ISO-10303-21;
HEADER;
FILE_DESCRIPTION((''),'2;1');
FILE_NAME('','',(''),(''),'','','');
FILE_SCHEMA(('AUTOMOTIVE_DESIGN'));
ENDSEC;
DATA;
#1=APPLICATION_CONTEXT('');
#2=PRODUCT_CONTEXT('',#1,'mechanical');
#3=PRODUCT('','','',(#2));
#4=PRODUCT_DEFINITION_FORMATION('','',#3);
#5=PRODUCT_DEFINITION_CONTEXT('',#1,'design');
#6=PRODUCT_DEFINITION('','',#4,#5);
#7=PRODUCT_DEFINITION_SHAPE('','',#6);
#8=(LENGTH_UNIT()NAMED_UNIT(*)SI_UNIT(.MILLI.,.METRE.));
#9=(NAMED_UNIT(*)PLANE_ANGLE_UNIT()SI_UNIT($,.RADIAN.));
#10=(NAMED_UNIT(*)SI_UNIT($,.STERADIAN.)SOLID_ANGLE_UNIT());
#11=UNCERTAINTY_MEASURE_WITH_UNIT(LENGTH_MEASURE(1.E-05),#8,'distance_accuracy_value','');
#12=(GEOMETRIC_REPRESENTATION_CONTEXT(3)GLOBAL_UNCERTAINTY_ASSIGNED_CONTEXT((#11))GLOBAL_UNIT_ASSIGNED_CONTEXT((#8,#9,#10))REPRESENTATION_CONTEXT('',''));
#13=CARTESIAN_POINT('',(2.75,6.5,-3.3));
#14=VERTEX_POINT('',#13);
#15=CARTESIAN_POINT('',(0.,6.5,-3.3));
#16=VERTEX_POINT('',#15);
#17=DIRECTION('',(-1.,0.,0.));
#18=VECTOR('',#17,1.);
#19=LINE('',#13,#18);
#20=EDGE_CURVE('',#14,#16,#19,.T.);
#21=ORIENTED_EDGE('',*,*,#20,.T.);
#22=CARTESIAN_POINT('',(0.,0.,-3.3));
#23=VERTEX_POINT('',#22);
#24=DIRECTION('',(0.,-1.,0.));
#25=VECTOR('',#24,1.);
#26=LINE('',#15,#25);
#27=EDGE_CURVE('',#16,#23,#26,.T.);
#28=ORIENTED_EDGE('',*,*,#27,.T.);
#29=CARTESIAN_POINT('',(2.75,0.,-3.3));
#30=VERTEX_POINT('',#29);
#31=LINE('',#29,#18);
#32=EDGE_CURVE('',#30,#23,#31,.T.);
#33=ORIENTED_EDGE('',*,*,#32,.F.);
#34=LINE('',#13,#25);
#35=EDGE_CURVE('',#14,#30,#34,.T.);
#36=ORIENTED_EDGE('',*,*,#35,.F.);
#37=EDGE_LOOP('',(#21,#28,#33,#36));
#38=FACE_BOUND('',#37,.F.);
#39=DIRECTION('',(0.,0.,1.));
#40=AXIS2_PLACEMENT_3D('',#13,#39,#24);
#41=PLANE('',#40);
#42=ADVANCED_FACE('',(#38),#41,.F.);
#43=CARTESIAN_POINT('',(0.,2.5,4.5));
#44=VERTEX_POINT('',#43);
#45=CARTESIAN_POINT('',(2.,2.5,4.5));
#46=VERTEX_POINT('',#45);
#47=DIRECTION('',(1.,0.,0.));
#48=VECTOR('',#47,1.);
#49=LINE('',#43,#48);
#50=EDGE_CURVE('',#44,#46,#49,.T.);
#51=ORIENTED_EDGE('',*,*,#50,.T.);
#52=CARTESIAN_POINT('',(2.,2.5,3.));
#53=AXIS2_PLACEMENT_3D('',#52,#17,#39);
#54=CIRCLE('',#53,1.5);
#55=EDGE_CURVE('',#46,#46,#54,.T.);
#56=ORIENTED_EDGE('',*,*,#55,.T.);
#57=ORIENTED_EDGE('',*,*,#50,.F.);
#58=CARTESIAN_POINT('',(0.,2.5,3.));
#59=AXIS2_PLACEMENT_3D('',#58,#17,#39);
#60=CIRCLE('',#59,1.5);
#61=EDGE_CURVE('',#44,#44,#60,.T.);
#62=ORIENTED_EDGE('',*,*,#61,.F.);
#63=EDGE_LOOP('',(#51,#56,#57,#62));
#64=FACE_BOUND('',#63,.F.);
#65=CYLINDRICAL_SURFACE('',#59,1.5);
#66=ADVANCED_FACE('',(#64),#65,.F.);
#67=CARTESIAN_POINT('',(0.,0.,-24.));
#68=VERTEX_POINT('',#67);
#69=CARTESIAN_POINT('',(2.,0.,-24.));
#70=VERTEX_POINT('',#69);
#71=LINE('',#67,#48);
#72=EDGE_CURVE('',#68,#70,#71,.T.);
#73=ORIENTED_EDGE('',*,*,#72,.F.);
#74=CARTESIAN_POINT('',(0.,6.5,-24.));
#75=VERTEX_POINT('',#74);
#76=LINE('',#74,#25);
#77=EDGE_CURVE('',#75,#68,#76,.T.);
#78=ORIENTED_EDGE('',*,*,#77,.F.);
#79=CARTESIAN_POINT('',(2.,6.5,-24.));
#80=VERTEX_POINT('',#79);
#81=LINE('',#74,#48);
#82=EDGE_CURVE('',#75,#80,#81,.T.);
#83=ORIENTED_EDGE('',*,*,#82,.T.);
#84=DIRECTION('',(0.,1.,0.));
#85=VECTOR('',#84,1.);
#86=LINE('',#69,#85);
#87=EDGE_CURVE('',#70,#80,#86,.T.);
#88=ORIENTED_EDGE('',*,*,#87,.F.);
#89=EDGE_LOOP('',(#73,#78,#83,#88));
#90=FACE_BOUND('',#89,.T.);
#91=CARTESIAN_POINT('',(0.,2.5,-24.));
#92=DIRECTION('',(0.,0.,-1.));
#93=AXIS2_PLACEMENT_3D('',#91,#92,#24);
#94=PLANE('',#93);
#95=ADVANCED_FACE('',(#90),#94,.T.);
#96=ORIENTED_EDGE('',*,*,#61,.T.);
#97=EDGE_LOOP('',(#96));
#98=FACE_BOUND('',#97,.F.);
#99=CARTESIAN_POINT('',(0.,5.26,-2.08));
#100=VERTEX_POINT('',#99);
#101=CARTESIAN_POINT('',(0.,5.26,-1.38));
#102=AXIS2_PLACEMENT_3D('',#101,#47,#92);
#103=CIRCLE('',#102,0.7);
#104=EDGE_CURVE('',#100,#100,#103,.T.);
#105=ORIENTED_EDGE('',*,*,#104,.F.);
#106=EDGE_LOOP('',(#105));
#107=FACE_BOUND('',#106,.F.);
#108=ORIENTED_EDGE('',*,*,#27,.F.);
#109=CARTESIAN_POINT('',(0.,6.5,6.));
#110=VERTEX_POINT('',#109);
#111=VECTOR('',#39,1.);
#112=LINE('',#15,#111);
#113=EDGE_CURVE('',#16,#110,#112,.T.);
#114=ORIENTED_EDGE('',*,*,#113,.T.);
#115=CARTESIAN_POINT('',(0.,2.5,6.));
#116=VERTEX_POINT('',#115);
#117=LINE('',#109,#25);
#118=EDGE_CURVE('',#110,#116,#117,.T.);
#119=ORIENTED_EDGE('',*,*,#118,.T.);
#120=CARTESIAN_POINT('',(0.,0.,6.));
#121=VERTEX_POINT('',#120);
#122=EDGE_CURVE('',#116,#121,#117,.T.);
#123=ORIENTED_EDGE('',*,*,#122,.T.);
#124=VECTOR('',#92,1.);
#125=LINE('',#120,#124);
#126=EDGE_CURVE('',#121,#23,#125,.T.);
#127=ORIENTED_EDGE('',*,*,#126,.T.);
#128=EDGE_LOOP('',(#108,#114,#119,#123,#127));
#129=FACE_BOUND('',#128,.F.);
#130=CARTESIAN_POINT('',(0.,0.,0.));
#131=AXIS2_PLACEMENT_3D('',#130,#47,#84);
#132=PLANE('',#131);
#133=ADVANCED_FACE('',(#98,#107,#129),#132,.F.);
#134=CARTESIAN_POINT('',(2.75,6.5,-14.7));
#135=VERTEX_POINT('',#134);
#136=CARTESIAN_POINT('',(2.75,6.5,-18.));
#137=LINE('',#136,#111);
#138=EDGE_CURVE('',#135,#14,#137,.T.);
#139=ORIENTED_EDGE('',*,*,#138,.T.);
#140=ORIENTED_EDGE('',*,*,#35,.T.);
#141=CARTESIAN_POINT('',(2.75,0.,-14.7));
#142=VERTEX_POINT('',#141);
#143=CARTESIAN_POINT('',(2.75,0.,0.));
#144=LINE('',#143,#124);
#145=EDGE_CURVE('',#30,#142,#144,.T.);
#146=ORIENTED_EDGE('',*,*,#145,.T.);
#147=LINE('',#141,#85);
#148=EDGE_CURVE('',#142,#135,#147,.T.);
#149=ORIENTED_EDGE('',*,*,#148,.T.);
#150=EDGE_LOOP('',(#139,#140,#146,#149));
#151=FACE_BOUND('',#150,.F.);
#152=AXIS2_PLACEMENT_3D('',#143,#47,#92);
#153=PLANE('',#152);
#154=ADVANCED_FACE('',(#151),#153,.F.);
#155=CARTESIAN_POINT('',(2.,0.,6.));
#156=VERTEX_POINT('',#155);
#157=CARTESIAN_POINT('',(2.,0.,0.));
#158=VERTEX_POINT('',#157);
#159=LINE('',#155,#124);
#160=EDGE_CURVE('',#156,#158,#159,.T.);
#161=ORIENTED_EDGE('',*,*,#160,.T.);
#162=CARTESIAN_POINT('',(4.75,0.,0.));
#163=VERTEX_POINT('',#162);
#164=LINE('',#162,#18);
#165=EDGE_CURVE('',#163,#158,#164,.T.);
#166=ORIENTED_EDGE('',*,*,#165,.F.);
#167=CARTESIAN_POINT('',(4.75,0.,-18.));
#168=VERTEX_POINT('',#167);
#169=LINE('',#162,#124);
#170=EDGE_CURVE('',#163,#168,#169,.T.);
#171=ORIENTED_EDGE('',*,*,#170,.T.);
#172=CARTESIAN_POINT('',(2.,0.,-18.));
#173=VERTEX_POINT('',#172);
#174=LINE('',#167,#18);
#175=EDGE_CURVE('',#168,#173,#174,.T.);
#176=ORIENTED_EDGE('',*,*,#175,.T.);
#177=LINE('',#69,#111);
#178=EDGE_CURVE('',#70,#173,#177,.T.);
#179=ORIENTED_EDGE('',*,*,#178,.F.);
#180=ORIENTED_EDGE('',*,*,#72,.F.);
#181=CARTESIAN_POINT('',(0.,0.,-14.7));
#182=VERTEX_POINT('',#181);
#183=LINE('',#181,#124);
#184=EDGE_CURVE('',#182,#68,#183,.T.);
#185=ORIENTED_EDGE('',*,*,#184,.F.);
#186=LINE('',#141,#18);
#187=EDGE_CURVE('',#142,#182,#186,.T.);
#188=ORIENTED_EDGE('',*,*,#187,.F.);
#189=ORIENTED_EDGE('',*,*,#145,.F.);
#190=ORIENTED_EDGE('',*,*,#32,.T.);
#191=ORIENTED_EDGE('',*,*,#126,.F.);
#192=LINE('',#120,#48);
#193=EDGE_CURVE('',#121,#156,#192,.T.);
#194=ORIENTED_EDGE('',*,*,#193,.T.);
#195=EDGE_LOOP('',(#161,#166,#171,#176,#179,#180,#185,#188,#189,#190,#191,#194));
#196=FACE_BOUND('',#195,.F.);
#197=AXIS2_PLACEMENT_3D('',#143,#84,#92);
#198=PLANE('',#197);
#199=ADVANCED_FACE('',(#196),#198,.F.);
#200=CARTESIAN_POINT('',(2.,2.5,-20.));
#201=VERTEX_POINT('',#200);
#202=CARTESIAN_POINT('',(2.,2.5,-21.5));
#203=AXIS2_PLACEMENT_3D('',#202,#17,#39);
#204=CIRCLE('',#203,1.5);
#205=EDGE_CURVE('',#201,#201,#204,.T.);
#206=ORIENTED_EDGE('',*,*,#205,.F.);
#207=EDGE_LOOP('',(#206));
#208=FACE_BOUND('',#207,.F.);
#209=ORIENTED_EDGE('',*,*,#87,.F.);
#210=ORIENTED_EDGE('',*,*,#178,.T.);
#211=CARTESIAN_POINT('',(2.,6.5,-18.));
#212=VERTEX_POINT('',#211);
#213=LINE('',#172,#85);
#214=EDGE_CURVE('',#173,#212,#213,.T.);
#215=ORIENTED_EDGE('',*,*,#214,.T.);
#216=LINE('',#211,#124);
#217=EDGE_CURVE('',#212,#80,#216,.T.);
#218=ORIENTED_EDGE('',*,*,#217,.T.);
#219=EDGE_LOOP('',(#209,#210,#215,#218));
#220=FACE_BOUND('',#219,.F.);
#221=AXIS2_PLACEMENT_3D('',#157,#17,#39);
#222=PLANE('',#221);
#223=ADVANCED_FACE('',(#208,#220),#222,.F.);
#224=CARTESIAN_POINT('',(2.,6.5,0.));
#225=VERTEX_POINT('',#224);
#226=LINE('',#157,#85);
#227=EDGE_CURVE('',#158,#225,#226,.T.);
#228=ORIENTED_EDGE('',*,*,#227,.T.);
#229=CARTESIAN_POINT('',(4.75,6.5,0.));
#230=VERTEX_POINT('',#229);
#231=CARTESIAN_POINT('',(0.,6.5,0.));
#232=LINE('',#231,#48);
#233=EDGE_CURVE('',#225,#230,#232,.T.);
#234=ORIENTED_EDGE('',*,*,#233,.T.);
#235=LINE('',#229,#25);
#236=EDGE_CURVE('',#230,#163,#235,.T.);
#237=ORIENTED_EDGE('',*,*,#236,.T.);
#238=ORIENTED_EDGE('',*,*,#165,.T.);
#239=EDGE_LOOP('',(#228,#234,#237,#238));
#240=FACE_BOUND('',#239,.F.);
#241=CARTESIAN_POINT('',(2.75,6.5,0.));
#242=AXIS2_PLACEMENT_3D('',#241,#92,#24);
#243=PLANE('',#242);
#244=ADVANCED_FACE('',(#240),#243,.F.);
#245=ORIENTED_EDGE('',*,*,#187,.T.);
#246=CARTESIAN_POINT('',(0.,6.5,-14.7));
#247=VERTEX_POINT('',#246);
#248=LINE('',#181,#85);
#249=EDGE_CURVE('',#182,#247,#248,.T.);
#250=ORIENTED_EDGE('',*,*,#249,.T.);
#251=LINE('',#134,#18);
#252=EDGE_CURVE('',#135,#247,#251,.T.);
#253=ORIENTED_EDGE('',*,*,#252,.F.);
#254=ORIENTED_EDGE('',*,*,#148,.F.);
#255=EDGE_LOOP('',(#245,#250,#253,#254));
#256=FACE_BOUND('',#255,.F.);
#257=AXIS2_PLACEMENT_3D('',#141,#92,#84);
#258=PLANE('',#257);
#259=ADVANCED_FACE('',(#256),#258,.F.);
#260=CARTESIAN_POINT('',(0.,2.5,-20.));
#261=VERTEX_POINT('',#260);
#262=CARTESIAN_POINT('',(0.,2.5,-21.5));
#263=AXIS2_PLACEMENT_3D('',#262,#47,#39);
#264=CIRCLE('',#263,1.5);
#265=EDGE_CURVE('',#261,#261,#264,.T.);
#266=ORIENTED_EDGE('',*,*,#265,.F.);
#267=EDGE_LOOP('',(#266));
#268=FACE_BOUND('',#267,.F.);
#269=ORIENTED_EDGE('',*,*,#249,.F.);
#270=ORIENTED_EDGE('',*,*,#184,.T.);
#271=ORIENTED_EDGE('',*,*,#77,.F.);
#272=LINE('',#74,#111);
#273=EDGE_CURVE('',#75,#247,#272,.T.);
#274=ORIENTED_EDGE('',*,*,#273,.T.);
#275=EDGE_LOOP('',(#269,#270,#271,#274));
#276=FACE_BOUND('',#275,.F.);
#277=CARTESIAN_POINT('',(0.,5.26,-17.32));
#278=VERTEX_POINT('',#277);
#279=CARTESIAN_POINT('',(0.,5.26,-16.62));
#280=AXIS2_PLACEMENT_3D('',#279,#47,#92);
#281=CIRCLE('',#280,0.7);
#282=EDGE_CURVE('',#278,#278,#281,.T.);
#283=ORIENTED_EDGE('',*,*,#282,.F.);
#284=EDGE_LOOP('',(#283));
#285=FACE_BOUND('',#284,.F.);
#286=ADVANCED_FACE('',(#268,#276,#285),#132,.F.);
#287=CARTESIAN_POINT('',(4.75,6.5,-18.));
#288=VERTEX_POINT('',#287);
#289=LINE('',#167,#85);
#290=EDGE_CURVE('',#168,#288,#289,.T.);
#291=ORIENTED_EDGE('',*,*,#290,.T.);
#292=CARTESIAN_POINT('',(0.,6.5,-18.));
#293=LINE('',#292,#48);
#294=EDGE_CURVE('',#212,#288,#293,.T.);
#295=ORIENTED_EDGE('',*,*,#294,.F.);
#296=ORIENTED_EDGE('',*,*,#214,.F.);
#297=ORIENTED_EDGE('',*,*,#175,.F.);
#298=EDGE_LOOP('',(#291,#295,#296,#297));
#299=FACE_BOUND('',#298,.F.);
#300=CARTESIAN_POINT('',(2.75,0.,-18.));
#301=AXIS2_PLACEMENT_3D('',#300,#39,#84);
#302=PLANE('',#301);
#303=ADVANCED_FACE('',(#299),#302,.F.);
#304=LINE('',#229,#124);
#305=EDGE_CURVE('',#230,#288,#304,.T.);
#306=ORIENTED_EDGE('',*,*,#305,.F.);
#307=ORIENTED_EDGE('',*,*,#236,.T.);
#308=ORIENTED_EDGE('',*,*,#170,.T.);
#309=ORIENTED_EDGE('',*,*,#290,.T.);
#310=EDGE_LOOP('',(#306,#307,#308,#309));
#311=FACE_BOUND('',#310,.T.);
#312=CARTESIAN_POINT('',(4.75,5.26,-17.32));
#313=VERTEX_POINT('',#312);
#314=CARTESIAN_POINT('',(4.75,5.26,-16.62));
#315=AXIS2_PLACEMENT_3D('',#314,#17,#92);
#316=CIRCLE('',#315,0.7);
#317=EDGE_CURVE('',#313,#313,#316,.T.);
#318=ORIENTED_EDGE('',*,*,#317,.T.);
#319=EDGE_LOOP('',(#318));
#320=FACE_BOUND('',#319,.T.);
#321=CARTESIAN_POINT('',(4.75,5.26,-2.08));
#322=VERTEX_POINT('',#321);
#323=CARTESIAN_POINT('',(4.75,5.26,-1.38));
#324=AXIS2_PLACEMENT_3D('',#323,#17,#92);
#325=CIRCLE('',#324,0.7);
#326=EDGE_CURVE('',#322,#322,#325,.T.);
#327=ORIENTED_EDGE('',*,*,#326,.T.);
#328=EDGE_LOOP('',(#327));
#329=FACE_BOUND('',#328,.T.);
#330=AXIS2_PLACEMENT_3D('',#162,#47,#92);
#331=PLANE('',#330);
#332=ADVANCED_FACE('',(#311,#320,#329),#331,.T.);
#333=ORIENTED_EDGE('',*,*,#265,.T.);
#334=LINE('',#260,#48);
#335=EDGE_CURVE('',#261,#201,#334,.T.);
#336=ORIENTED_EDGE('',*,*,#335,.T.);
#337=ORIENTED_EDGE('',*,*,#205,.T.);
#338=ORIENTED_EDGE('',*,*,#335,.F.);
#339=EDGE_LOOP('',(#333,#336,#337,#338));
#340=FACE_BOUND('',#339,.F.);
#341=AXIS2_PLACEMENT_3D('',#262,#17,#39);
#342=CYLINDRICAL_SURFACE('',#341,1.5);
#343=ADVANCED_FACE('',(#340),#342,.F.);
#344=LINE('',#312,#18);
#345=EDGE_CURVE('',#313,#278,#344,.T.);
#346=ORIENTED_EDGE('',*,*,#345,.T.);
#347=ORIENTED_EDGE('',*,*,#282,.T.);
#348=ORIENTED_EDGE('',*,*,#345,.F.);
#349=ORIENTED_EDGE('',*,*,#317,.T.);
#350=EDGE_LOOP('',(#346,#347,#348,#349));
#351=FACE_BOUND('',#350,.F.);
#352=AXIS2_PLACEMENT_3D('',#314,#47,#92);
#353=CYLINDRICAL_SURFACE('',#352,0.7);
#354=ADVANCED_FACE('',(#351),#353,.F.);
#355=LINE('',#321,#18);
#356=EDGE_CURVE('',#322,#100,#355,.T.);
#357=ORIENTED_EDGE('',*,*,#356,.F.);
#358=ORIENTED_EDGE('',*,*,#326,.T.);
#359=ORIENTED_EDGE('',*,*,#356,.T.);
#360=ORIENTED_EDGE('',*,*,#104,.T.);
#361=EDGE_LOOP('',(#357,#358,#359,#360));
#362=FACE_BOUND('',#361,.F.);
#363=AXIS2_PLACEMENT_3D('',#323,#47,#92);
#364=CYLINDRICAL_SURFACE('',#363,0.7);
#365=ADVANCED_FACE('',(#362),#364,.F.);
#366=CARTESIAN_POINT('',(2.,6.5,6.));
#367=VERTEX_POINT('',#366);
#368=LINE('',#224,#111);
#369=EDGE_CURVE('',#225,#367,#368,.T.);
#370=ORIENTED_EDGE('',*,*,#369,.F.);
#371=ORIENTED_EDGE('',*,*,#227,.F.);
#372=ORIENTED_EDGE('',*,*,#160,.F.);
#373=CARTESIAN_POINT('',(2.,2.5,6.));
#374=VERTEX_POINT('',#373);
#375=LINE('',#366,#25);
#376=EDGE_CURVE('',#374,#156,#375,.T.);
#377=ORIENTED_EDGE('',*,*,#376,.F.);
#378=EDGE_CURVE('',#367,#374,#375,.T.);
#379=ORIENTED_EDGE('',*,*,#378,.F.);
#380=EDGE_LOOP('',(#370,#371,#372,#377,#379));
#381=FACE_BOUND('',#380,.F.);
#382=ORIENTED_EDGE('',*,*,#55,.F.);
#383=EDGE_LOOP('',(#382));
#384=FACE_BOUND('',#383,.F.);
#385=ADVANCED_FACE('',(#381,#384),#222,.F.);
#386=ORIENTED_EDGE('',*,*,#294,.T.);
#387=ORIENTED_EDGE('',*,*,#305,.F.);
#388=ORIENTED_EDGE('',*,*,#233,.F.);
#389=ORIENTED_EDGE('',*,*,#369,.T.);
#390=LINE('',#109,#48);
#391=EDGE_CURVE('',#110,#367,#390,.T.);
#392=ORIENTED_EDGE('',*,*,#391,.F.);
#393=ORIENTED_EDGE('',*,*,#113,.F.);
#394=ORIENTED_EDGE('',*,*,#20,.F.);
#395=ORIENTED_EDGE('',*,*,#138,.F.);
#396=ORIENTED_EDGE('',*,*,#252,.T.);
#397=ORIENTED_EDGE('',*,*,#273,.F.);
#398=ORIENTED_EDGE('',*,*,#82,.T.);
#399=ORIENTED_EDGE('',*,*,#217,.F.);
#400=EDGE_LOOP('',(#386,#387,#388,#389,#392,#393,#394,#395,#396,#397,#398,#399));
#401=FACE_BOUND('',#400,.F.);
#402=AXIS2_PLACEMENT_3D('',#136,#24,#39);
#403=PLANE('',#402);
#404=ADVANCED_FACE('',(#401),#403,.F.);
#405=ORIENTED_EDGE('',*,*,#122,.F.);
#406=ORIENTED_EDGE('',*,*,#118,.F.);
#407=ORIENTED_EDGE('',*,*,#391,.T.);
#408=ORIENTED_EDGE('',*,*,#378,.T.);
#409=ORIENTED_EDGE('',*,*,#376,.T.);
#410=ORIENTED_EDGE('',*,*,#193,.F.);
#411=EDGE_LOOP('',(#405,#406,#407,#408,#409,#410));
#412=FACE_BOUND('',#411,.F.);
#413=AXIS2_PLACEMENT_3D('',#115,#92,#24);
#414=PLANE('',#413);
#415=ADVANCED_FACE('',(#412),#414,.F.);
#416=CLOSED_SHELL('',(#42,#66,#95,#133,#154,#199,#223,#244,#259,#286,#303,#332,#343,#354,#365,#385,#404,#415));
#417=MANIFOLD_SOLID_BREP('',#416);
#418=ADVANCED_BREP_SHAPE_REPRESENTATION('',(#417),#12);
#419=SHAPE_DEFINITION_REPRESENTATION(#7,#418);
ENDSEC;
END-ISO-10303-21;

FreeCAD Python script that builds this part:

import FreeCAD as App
import Part
import Sketcher
from FreeCAD import Vector
Q = App.Units.Quantity


def add_polygon(sketch, points):
    """Adds a closed chain of lines whose ends are joined by coincident constraints."""
    first, n = sketch.GeometryCount, len(points)
    for a, b in zip(points, points[1:] + points[:1]):
        sketch.addGeometry(Part.LineSegment(App.Vector(*a, 0), App.Vector(*b, 0)), False)
    for i in range(n):
        sketch.addConstraint(Sketcher.Constraint("Coincident", first + i, 2, first + (i + 1) % n, 1))

doc = App.newDocument("Part")
body = doc.addObject("PartDesign::Body", "Body")
body.AllowCompound = True

sketch1 = body.newObject("Sketcher::SketchObject", "Sketch")
sketch1.AttachmentSupport = (doc.getObject("YZ_Plane"), [""])
sketch1.MapMode = "FlatFace"
add_polygon(sketch1, [(6, 0), (0, 0), (0, -18), (6, -18)])
sketch1.addConstraint(Sketcher.Constraint("Horizontal", 0))
sketch1.addConstraint(Sketcher.Constraint("Vertical", 1))
sketch1.addConstraint(Sketcher.Constraint("Horizontal", 2))
sketch1.addConstraint(Sketcher.Constraint("Vertical", 3))
sketch1.addConstraint(Sketcher.Constraint("Coincident", 0, 2, -1, 1))
sketch1.addConstraint(Sketcher.Constraint("DistanceY", 1, 2, 1, 1, Q("18 mm")))
sketch1.addConstraint(Sketcher.Constraint("DistanceX", 0, 2, 0, 1, Q("6.5 mm")))
pad1 = body.newObject("PartDesign::Pad", "Pad")
pad1.Profile = sketch1
pad1.Length = 2.75

sketch2 = body.newObject("Sketcher::SketchObject", "Sketch001")
sketch2.AttachmentSupport = (doc.getObject("YZ_Plane"), [""])
sketch2.MapMode = "FlatFace"
sketch2.AttachmentOffset = App.Placement(Vector(0, 0, 2.75), App.Rotation())
add_polygon(sketch2, [(6, -15), (6, -3), (0, -3), (0, -15)])
sketch2.addConstraint(Sketcher.Constraint("Vertical", 0))
sketch2.addConstraint(Sketcher.Constraint("Horizontal", 1))
sketch2.addConstraint(Sketcher.Constraint("Vertical", 2))
sketch2.addConstraint(Sketcher.Constraint("Horizontal", 3))
sketch2.addConstraint(Sketcher.Constraint("PointOnObject", 1, 2, -2))
sketch2.addConstraint(Sketcher.Constraint("DistanceY", 0, 2, -1, 1, Q("3.3 mm")))
sketch2.addConstraint(Sketcher.Constraint("DistanceX", 1, 2, 1, 1, Q("6.5 mm")))
sketch2.addConstraint(Sketcher.Constraint("DistanceY", 0, 1, 0, 2, Q("11.4 mm")))
pocket1 = body.newObject("PartDesign::Pocket", "Pocket")
pocket1.Profile = sketch2
pocket1.Length = 2.75

sketch3 = body.newObject("Sketcher::SketchObject", "Sketch002")
sketch3.AttachmentSupport = (doc.getObject("YZ_Plane"), [""])
sketch3.MapMode = "FlatFace"
sketch3.AttachmentOffset = App.Placement(Vector(0, 0, 2.75), App.Rotation())
add_polygon(sketch3, [(0, -18), (6, -18), (6, 0), (0, 0)])
sketch3.addConstraint(Sketcher.Constraint("Horizontal", 0))
sketch3.addConstraint(Sketcher.Constraint("Vertical", 1))
sketch3.addConstraint(Sketcher.Constraint("Horizontal", 2))
sketch3.addConstraint(Sketcher.Constraint("Vertical", 3))
sketch3.addConstraint(Sketcher.Constraint("Coincident", 2, 2, -1, 1))
sketch3.addConstraint(Sketcher.Constraint("DistanceY", 1, 1, 1, 2, Q("18 mm")))
sketch3.addConstraint(Sketcher.Constraint("DistanceX", 0, 1, 0, 2, Q("6.5 mm")))
pad2 = body.newObject("PartDesign::Pad", "Pad001")
pad2.Profile = sketch3
pad2.Length = 2

sketch4 = body.newObject("Sketcher::SketchObject", "Sketch003")
sketch4.AttachmentSupport = (doc.getObject("YZ_Plane"), [""])
sketch4.MapMode = "FlatFace"
sketch4.AttachmentOffset = App.Placement(Vector(0, 0, 4.75), App.Rotation())
sketch4.addGeometry(Part.Circle(Vector(5.3, -1.4, 0), Vector(0, 0, 1), 0.7), False)
sketch4.addGeometry(Part.Circle(Vector(5.3, -16.6, 0), Vector(0, 0, 1), 0.7), False)
sketch4.addConstraint(Sketcher.Constraint("Equal", 0, 1))
sketch4.addConstraint(Sketcher.Constraint("Vertical", 0, 3, 1, 3))
sketch4.addConstraint(Sketcher.Constraint("Diameter", 0, Q("1.4 mm")))
sketch4.addConstraint(Sketcher.Constraint("DistanceY", 0, 3, -1, 1, Q("1.38 mm")))
sketch4.addConstraint(Sketcher.Constraint("DistanceX", -1, 1, 0, 3, Q("5.26 mm")))
sketch4.addConstraint(Sketcher.Constraint("DistanceY", 1, 3, -1, 1, Q("16.62 mm")))
pocket2 = body.newObject("PartDesign::Pocket", "Pocket001")
pocket2.Profile = sketch4
pocket2.Length = 20

sketch5 = body.newObject("Sketcher::SketchObject", "Sketch004")
sketch5.AttachmentSupport = (doc.getObject("YZ_Plane"), [""])
sketch5.MapMode = "FlatFace"
add_polygon(sketch5, [(6.5, 6), (6.5, 0), (0, 0), (0, 6), (2.5, 6)])
sketch5.addGeometry(Part.Circle(Vector(2.5, 3, 0), Vector(0, 0, 1), 1.5), False)
add_polygon(sketch5, [(0, -18), (6.5, -18), (6.5, -24), (0, -24)])
sketch5.addGeometry(Part.Circle(Vector(2.5, -21.5, 0), Vector(0, 0, 1), 1.5), False)
sketch5.addConstraint(Sketcher.Constraint("Vertical", 0))
sketch5.addConstraint(Sketcher.Constraint("Horizontal", 1))
sketch5.addConstraint(Sketcher.Constraint("Vertical", 2))
sketch5.addConstraint(Sketcher.Constraint("Horizontal", 3))
sketch5.addConstraint(Sketcher.Constraint("Horizontal", 4))
sketch5.addConstraint(Sketcher.Constraint("Horizontal", 6))
sketch5.addConstraint(Sketcher.Constraint("Vertical", 7))
sketch5.addConstraint(Sketcher.Constraint("Horizontal", 8))
sketch5.addConstraint(Sketcher.Constraint("Vertical", 9))
sketch5.addConstraint(Sketcher.Constraint("Coincident", 1, 2, -1, 1))
sketch5.addConstraint(Sketcher.Constraint("Equal", 5, 10))
sketch5.addConstraint(Sketcher.Constraint("PointOnObject", 8, 2, -2))
sketch5.addConstraint(Sketcher.Constraint("Vertical", 5, 3, 10, 3))
sketch5.addConstraint(Sketcher.Constraint("Vertical", 10, 3, 3, 2))
sketch5.addConstraint(Sketcher.Constraint("Vertical", 4, 2, 6, 2))
sketch5.addConstraint(Sketcher.Constraint("Equal", 2, 7))
sketch5.addConstraint(Sketcher.Constraint("Diameter", 5, Q("3 mm")))
sketch5.addConstraint(Sketcher.Constraint("DistanceX", 4, 1, 4, 2, Q("4 mm")))
sketch5.addConstraint(Sketcher.Constraint("DistanceY", 0, 2, 0, 1, Q("6 mm")))
sketch5.addConstraint(Sketcher.Constraint("DistanceX", 1, 2, 1, 1, Q("6.5 mm")))
sketch5.addConstraint(Sketcher.Constraint("DistanceY", -1, 1, 5, 3, Q("3 mm")))
sketch5.addConstraint(Sketcher.Constraint("DistanceY", 7, 2, 10, 3, Q("2.5 mm")))
sketch5.addConstraint(Sketcher.Constraint("DistanceY", 6, 2, -1, 1, Q("18 mm")))
pad3 = body.newObject("PartDesign::Pad", "Pad002")
pad3.Profile = sketch5
pad3.Length = 2

doc.recompute()
